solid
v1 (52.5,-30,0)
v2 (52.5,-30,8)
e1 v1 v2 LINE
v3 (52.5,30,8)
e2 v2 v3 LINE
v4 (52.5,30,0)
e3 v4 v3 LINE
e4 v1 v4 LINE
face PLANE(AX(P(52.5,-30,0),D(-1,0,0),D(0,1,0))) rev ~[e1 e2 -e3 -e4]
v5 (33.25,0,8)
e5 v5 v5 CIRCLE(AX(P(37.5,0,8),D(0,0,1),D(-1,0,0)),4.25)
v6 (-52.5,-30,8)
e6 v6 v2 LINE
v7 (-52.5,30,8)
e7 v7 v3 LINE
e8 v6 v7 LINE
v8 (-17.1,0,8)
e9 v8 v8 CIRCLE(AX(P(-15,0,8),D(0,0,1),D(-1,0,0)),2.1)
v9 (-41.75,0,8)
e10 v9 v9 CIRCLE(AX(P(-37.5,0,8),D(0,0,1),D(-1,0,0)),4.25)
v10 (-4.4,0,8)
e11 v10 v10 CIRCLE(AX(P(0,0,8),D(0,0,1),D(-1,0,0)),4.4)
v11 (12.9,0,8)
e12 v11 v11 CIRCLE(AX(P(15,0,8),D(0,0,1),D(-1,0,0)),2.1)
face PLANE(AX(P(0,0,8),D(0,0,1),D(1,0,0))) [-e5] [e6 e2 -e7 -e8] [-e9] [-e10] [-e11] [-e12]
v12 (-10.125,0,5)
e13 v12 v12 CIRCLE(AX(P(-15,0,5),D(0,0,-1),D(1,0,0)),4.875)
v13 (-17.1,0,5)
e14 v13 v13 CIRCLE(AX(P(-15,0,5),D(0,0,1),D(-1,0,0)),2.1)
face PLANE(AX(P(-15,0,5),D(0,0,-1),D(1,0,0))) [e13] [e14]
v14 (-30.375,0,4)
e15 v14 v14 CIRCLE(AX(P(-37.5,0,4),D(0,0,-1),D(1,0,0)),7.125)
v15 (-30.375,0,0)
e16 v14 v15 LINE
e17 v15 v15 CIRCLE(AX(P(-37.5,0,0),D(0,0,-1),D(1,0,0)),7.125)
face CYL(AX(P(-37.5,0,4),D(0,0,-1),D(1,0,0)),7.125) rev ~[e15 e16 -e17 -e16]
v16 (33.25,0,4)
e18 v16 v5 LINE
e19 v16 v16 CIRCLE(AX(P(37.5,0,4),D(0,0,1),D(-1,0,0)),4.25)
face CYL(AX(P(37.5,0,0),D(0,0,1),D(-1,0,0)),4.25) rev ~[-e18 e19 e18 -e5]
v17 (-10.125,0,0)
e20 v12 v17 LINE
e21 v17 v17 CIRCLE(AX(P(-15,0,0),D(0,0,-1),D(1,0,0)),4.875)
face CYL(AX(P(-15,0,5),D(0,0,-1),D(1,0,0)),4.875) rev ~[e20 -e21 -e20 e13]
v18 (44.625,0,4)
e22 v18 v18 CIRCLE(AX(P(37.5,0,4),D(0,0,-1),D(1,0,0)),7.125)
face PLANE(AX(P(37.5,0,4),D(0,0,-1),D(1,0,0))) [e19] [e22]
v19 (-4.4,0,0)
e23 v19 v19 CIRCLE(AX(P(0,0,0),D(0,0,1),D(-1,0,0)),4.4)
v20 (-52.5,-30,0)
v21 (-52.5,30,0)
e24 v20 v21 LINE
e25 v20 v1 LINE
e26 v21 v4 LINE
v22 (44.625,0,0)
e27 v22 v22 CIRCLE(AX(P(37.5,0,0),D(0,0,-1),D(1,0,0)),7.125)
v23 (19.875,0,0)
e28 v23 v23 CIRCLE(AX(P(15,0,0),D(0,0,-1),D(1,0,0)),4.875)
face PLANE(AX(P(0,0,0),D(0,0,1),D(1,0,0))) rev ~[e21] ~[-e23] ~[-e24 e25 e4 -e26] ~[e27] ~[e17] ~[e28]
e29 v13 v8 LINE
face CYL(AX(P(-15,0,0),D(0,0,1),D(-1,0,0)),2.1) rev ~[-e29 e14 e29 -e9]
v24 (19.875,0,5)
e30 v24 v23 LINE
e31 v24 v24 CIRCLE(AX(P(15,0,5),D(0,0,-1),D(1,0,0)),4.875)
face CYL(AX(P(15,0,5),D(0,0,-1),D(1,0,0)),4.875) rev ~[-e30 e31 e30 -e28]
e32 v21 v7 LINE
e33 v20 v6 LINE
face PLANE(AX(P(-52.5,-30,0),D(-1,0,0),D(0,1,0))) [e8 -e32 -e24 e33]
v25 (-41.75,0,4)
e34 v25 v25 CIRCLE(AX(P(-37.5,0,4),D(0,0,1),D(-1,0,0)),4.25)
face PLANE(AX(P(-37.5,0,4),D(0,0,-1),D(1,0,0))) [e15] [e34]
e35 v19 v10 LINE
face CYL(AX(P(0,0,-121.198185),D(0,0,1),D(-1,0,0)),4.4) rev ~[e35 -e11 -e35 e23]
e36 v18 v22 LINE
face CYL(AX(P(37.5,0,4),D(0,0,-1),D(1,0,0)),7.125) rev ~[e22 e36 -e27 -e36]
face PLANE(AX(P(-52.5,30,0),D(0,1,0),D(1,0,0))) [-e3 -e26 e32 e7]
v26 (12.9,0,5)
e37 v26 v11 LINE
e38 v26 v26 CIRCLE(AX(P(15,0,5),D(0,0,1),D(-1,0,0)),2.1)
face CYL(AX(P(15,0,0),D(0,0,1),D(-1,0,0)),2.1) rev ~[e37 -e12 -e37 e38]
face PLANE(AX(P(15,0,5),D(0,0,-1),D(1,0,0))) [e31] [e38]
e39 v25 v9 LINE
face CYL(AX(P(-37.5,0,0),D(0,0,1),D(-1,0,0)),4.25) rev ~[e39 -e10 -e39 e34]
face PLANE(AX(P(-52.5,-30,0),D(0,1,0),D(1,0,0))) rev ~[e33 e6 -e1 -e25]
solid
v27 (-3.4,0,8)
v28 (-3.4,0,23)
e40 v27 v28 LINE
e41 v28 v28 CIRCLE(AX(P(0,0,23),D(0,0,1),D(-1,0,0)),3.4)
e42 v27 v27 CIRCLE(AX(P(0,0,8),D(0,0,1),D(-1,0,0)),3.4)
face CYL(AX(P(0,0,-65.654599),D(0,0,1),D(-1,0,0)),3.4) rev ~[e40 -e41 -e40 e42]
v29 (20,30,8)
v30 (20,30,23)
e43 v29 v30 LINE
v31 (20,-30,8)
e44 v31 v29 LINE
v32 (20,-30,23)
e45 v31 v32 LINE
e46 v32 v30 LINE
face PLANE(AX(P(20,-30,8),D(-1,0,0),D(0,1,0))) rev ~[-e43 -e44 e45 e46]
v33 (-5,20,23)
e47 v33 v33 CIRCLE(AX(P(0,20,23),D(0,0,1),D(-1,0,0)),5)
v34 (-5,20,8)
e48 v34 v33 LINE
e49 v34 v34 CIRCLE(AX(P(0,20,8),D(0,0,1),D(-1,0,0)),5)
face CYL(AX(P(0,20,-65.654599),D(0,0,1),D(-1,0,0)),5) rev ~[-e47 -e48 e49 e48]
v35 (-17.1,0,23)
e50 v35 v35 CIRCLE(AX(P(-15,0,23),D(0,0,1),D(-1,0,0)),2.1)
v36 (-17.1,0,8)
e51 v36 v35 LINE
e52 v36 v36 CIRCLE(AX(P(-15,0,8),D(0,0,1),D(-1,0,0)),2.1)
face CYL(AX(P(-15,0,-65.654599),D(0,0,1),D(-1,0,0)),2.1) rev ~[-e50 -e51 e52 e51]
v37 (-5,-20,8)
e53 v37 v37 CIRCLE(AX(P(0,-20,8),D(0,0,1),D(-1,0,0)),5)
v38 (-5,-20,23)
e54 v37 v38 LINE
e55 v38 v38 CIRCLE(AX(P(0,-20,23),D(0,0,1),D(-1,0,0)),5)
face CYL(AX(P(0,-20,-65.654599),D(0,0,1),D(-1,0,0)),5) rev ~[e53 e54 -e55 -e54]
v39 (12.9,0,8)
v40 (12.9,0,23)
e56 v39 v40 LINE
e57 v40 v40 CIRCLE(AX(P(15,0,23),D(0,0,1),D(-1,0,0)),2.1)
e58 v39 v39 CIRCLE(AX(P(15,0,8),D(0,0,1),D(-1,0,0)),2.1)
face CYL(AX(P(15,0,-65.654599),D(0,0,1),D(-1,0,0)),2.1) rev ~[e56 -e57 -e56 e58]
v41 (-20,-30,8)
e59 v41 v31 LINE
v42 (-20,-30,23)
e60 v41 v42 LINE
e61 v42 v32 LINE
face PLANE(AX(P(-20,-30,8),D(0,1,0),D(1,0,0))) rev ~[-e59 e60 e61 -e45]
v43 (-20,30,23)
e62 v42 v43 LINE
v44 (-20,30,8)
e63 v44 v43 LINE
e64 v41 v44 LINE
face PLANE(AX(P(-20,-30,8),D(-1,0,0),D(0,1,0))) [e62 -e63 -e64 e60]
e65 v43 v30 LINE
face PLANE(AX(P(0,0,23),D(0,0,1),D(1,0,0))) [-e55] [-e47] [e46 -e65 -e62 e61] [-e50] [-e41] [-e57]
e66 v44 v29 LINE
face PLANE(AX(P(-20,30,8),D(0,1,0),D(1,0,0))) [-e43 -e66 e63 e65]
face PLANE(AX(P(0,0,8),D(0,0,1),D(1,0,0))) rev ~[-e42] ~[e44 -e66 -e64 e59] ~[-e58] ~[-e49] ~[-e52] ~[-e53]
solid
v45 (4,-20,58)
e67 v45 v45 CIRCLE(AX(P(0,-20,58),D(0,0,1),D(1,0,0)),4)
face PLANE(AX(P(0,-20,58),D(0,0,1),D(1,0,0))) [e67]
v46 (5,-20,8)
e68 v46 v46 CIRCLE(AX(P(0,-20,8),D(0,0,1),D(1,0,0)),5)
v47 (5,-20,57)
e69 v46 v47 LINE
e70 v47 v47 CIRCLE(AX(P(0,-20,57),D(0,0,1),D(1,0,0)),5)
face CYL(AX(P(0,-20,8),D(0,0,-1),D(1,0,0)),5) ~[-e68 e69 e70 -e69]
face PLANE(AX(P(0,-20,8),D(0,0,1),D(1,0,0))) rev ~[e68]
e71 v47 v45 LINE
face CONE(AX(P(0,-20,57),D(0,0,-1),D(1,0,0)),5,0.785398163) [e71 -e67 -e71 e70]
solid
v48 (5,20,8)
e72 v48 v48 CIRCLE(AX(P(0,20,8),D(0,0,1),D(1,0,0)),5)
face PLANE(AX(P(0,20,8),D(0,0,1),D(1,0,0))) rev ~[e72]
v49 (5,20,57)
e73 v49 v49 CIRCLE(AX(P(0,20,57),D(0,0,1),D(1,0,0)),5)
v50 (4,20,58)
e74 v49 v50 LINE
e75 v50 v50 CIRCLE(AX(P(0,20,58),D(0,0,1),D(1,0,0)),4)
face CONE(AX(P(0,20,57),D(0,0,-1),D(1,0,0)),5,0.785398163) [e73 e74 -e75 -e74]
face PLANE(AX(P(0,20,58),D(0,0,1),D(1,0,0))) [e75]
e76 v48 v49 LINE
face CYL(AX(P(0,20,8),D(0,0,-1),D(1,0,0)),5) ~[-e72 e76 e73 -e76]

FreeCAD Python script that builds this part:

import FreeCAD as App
import Part
import Sketcher

V = App.Vector


def edges_at(feature, points):
    """Names of the edges that pass closest to the given points."""
    edges = feature.Shape.Edges
    near = lambda p: min(range(len(edges)), key=lambda i: edges[i].distToShape(Part.Vertex(*p))[0])
    return sorted({f"Edge{near(p) + 1}" for p in points})

doc = App.newDocument("Part")
body = doc.addObject("PartDesign::Body", "Body")

sketch1 = doc.addObject("Sketcher::SketchObject", "Sketch")
body.addObject(sketch1)
sketch1.AttachmentSupport = (doc.XY_Plane, [""])
sketch1.MapMode = "FlatFace"
sketch1.addGeometry([
    Part.LineSegment(V(-52, 30, 0), V(-52, -30, 0)),
    Part.LineSegment(V(-52, -30, 0), V(52, -30, 0)),
    Part.LineSegment(V(52, -30, 0), V(52, 30, 0)),
    Part.LineSegment(V(52, 30, 0), V(-52, 30, 0)),
], False)
sketch1.addConstraint([
    Sketcher.Constraint("Coincident", 0, 2, 1, 1),
    Sketcher.Constraint("Coincident", 1, 2, 2, 1),
    Sketcher.Constraint("Coincident", 2, 2, 3, 1),
    Sketcher.Constraint("Coincident", 3, 2, 0, 1),
    Sketcher.Constraint("Vertical", 0),
    Sketcher.Constraint("Horizontal", 1),
    Sketcher.Constraint("Vertical", 2),
    Sketcher.Constraint("Horizontal", 3),
    Sketcher.Constraint("Symmetric", 0, 2, 2, 2, -1, 1),
    Sketcher.Constraint("DistanceX", 1, 1, 1, 2, 105.0),
    Sketcher.Constraint("DistanceY", 0, 2, 0, 1, 60.0),
])
pad1 = doc.addObject("PartDesign::Pad", "Pad")
body.addObject(pad1)
pad1.Profile = sketch1
pad1.Length = 8

sketch2 = doc.addObject("Sketcher::SketchObject", "Sketch001")
body.addObject(sketch2)
sketch2.AttachmentSupport = (doc.XY_Plane, [""])
sketch2.MapMode = "FlatFace"
sketch2.addGeometry([
    Part.Circle(V(-37.5, 0, 0), V(0, 0, 1), 4.2),
    Part.Circle(V(37.5, 0, 0), V(0, 0, 1), 4.2),
], False)
sketch2.addConstraint([
    Sketcher.Constraint("Equal", 0, 1),
    Sketcher.Constraint("Symmetric", 0, 3, 1, 3, -1, 1),
    Sketcher.Constraint("PointOnObject", 0, 3, -1),
    Sketcher.Constraint("Diameter", 0, 8.5),
    Sketcher.Constraint("DistanceX", 0, 3, 1, 3, 75.0),
])
doc.recompute()
hole = doc.addObject("PartDesign::Hole", "Hole")
body.addObject(hole)
hole.Profile = sketch2
hole.ThreadType = "None"
hole.Diameter = 8.5
hole.DepthType = "ThroughAll"
hole.HoleCutType = "Counterbore"
hole.HoleCutDiameter = 14.25
hole.HoleCutDepth = 4
hole.Reversed = True

sketch3 = doc.addObject("Sketcher::SketchObject", "Sketch002")
body.addObject(sketch3)
sketch3.AttachmentSupport = (doc.XY_Plane, [""])
sketch3.MapMode = "FlatFace"
sketch3.addGeometry(Part.Circle(V(0, 0, 0), V(0, 0, 1), 4.4), False)
sketch3.addConstraint([
    Sketcher.Constraint("Coincident", 0, 3, -1, 1),
    Sketcher.Constraint("Diameter", 0, 8.8),
])
doc.recompute()
hole2 = doc.addObject("PartDesign::Hole", "Hole001")
body.addObject(hole2)
hole2.Profile = sketch3
hole2.ThreadType = "None"
hole2.Diameter = 8.8
hole2.DepthType = "ThroughAll"
hole2.Reversed = True

sketch4 = doc.addObject("Sketcher::SketchObject", "Sketch003")
body.addObject(sketch4)
sketch4.AttachmentSupport = (doc.XY_Plane, [""])
sketch4.MapMode = "FlatFace"
sketch4.addGeometry([
    Part.Circle(V(-15, 0, 0), V(0, 0, 1), 2.1),
    Part.Circle(V(15, 0, 0), V(0, 0, 1), 2.1),
], False)
sketch4.addConstraint([
    Sketcher.Constraint("Equal", 0, 1),
    Sketcher.Constraint("Symmetric", 0, 3, 1, 3, -1, 1),
    Sketcher.Constraint("PointOnObject", 0, 3, -1),
    Sketcher.Constraint("Diameter", 0, 4.2),
    Sketcher.Constraint("DistanceX", 0, 3, -1, 1, 15.0),
])
doc.recompute()
hole3 = doc.addObject("PartDesign::Hole", "Hole002")
body.addObject(hole3)
hole3.Profile = sketch4
hole3.ThreadType = "None"
hole3.Diameter = 4.2
hole3.DepthType = "ThroughAll"
hole3.HoleCutType = "Counterbore"
hole3.HoleCutDiameter = 9.75
hole3.HoleCutDepth = 5
hole3.Reversed = True
body2 = doc.addObject("PartDesign::Body", "Body001")

sketch5 = doc.addObject("Sketcher::SketchObject", "Sketch004")
body2.addObject(sketch5)
sketch5.AttachmentSupport = (doc.getObject("XY_Plane001"), [""])
sketch5.MapMode = "FlatFace"
sketch5.AttachmentOffset = App.Placement(V(0, 0, 8), App.Rotation())
sketch5.addGeometry([
    Part.LineSegment(V(-20, 30, 0), V(-20, -30, 0)),
    Part.LineSegment(V(-20, -30, 0), V(20, -30, 0)),
    Part.LineSegment(V(20, -30, 0), V(20, 30, 0)),
    Part.LineSegment(V(20, 30, 0), V(-20, 30, 0)),
], False)
sketch5.addConstraint([
    Sketcher.Constraint("Coincident", 0, 2, 1, 1),
    Sketcher.Constraint("Coincident", 1, 2, 2, 1),
    Sketcher.Constraint("Coincident", 2, 2, 3, 1),
    Sketcher.Constraint("Coincident", 3, 2, 0, 1),
    Sketcher.Constraint("Vertical", 0),
    Sketcher.Constraint("Horizontal", 1),
    Sketcher.Constraint("Vertical", 2),
    Sketcher.Constraint("Horizontal", 3),
    Sketcher.Constraint("Symmetric", 0, 2, 2, 2, -1, 1),
    Sketcher.Constraint("DistanceX", 1, 1, 1, 2, 40.0),
    Sketcher.Constraint("DistanceY", 0, 2, 0, 1, 60.0),
])
pad2 = doc.addObject("PartDesign::Pad", "Pad001")
body2.addObject(pad2)
pad2.Profile = sketch5
pad2.Length = 15

sketch6 = doc.addObject("Sketcher::SketchObject", "Sketch005")
body2.addObject(sketch6)
sketch6.AttachmentSupport = (doc.getObject("XY_Plane001"), [""])
sketch6.MapMode = "FlatFace"
sketch6.AttachmentOffset = App.Placement(V(0, 0, 8), App.Rotation())
sketch6.addGeometry([
    Part.Circle(V(0, 20, 0), V(0, 0, 1), 5),
    Part.Circle(V(0, -20, 0), V(0, 0, 1), 5),
], False)
sketch6.addConstraint([
    Sketcher.Constraint("Equal", 0, 1),
    Sketcher.Constraint("Symmetric", 0, 3, 1, 3, -1, 1),
    Sketcher.Constraint("PointOnObject", 0, 3, -2),
    Sketcher.Constraint("Diameter", 0, 10.0),
    Sketcher.Constraint("DistanceY", -1, 1, 0, 3, 20.0),
])
doc.recompute()
hole4 = doc.addObject("PartDesign::Hole", "Hole003")
body2.addObject(hole4)
hole4.Profile = sketch6
hole4.ThreadType = "None"
hole4.Diameter = 10
hole4.DepthType = "ThroughAll"
hole4.Reversed = True

sketch7 = doc.addObject("Sketcher::SketchObject", "Sketch006")
body2.addObject(sketch7)
sketch7.AttachmentSupport = (doc.getObject("XY_Plane001"), [""])
sketch7.MapMode = "FlatFace"
sketch7.AttachmentOffset = App.Placement(V(0, 0, 8), App.Rotation())
sketch7.addGeometry([
    Part.Circle(V(-15, 0, 0), V(0, 0, 1), 2.1),
    Part.Circle(V(15, 0, 0), V(0, 0, 1), 2.1),
], False)
sketch7.addConstraint([
    Sketcher.Constraint("Equal", 0, 1),
    Sketcher.Constraint("Symmetric", 0, 3, 1, 3, -1, 1),
    Sketcher.Constraint("PointOnObject", 0, 3, -1),
    Sketcher.Constraint("Diameter", 0, 4.2),
    Sketcher.Constraint("DistanceX", 0, 3, -1, 1, 15.0),
])
doc.recompute()
hole5 = doc.addObject("PartDesign::Hole", "Hole004")
body2.addObject(hole5)
hole5.Profile = sketch7
hole5.ThreadType = "None"
hole5.Diameter = 4.2
hole5.DepthType = "ThroughAll"
hole5.Reversed = True

sketch8 = doc.addObject("Sketcher::SketchObject", "Sketch007")
body2.addObject(sketch8)
sketch8.AttachmentSupport = (doc.getObject("XY_Plane001"), [""])
sketch8.MapMode = "FlatFace"
sketch8.AttachmentOffset = App.Placement(V(0, 0, 8), App.Rotation())
sketch8.addGeometry(Part.Circle(V(0, 0, 0), V(0, 0, 1), 3.4), False)
sketch8.addConstraint([
    Sketcher.Constraint("Coincident", 0, 3, -1, 1),
    Sketcher.Constraint("Diameter", 0, 6.8),
])
doc.recompute()
hole6 = doc.addObject("PartDesign::Hole", "Hole005")
body2.addObject(hole6)
hole6.Profile = sketch8
hole6.ThreadType = "None"
hole6.Diameter = 6.8
hole6.DepthType = "ThroughAll"
hole6.Reversed = True
body3 = doc.addObject("PartDesign::Body", "Body002")

sketch9 = doc.addObject("Sketcher::SketchObject", "Sketch008")
body3.addObject(sketch9)
sketch9.AttachmentSupport = (doc.getObject("XY_Plane002"), [""])
sketch9.MapMode = "FlatFace"
sketch9.AttachmentOffset = App.Placement(V(0, 0, 8), App.Rotation())
sketch9.addGeometry(Part.Circle(V(0, -20, 0), V(0, 0, 1), 5), False)
sketch9.addConstraint([
    Sketcher.Constraint("PointOnObject", 0, 3, -2),
    Sketcher.Constraint("Diameter", 0, 10.0),
    Sketcher.Constraint("DistanceY", 0, 3, -1, 1, 20.0),
])
pad3 = doc.addObject("PartDesign::Pad", "Pad002")
body3.addObject(pad3)
pad3.Profile = sketch9
pad3.Length = 50
doc.recompute()

chamfer = doc.addObject("PartDesign::Chamfer", "Chamfer")
body3.addObject(chamfer)
chamfer.Base = (pad3, edges_at(pad3, [(-5, -20, 58)]))
chamfer.Size = 1
body4 = doc.addObject("PartDesign::Body", "Body003")

sketch10 = doc.addObject("Sketcher::SketchObject", "Sketch009")
body4.addObject(sketch10)
sketch10.AttachmentSupport = (doc.getObject("XY_Plane003"), [""])
sketch10.MapMode = "FlatFace"
sketch10.AttachmentOffset = App.Placement(V(0, 0, 8), App.Rotation())
sketch10.addGeometry(Part.Circle(V(0, 20, 0), V(0, 0, 1), 5), False)
sketch10.addConstraint([
    Sketcher.Constraint("PointOnObject", 0, 3, -2),
    Sketcher.Constraint("Diameter", 0, 10.0),
    Sketcher.Constraint("DistanceY", -1, 1, 0, 3, 20.0),
])
pad4 = doc.addObject("PartDesign::Pad", "Pad003")
body4.addObject(pad4)
pad4.Profile = sketch10
pad4.Length = 50
doc.recompute()

chamfer2 = doc.addObject("PartDesign::Chamfer", "Chamfer001")
body4.addObject(chamfer2)
chamfer2.Base = (pad4, edges_at(pad4, [(-5, 20, 58)]))
chamfer2.Size = 1

doc.recompute()
